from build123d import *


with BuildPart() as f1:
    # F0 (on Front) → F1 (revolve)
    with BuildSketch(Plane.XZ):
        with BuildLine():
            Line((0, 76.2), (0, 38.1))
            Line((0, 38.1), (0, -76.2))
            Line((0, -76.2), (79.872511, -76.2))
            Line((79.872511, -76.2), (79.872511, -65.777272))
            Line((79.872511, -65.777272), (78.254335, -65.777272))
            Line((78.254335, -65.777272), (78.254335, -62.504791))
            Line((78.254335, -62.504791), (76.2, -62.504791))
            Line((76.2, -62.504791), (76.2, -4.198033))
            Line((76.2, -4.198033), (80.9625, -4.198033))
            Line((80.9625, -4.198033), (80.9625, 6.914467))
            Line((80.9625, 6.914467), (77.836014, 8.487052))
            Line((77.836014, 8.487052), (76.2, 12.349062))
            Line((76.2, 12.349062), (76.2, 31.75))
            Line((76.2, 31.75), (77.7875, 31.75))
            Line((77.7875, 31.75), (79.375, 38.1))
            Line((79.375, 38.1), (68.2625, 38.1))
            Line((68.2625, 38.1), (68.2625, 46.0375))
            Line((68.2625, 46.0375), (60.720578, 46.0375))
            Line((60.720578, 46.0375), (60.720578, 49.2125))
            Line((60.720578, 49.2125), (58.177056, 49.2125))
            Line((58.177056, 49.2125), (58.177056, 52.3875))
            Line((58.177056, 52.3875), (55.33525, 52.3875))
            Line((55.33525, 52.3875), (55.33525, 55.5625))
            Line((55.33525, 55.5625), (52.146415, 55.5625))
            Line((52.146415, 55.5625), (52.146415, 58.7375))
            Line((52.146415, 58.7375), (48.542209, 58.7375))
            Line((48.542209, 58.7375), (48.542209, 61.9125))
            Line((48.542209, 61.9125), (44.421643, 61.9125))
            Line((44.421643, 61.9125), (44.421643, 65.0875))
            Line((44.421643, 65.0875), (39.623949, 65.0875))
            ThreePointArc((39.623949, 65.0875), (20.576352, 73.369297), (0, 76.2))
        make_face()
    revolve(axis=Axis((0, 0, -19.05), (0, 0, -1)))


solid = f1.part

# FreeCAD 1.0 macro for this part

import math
import FreeCAD as App
import Part
import Sketcher
from FreeCAD import Vector
Q = App.Units.Quantity

doc = App.newDocument("Part")
body = doc.addObject("PartDesign::Body", "Body")

sketch1 = body.newObject("Sketcher::SketchObject", "Sketch")
sketch1.AttachmentSupport = (doc.getObject("XZ_Plane"), [""])
sketch1.MapMode = "FlatFace"
sketch1.addGeometry([
    Part.LineSegment(Vector(0, 76.2, 0), Vector(0, -76.2, 0)),
    Part.LineSegment(Vector(0, -76.2, 0), Vector(79.9, -76.2, 0)),
    Part.LineSegment(Vector(79.9, -76.2, 0), Vector(79.9, -65.8, 0)),
    Part.LineSegment(Vector(79.9, -65.8, 0), Vector(78.3, -65.8, 0)),
    Part.LineSegment(Vector(78.3, -65.8, 0), Vector(78.3, -62.5, 0)),
    Part.LineSegment(Vector(78.3, -62.5, 0), Vector(76.2, -62.5, 0)),
    Part.LineSegment(Vector(76.2, -62.5, 0), Vector(76.2, -4.2, 0)),
    Part.LineSegment(Vector(76.2, -4.2, 0), Vector(81, -4.2, 0)),
    Part.LineSegment(Vector(81, -4.2, 0), Vector(81, 6.9, 0)),
    Part.LineSegment(Vector(81, 6.9, 0), Vector(77.8, 8.5, 0)),
    Part.LineSegment(Vector(77.8, 8.5, 0), Vector(76.2, 12.3, 0)),
    Part.LineSegment(Vector(76.2, 12.3, 0), Vector(76.2, 31.8, 0)),
    Part.LineSegment(Vector(76.2, 31.8, 0), Vector(77.8, 31.8, 0)),
    Part.LineSegment(Vector(77.8, 31.8, 0), Vector(79.4, 38.1, 0)),
    Part.LineSegment(Vector(79.4, 38.1, 0), Vector(68.3, 38.1, 0)),
    Part.LineSegment(Vector(68.3, 38.1, 0), Vector(68.3, 46, 0)),
    Part.LineSegment(Vector(68.3, 46, 0), Vector(60.7, 46, 0)),
    Part.LineSegment(Vector(60.7, 46, 0), Vector(60.7, 49.2, 0)),
    Part.LineSegment(Vector(60.7, 49.2, 0), Vector(58.2, 49.2, 0)),
    Part.LineSegment(Vector(58.2, 49.2, 0), Vector(58.2, 52.4, 0)),
    Part.LineSegment(Vector(58.2, 52.4, 0), Vector(55.3, 52.4, 0)),
    Part.LineSegment(Vector(55.3, 52.4, 0), Vector(55.3, 55.6, 0)),
    Part.LineSegment(Vector(55.3, 55.6, 0), Vector(52.1, 55.6, 0)),
    Part.LineSegment(Vector(52.1, 55.6, 0), Vector(52.1, 58.7, 0)),
    Part.LineSegment(Vector(52.1, 58.7, 0), Vector(48.5, 58.7, 0)),
    Part.LineSegment(Vector(48.5, 58.7, 0), Vector(48.5, 61.9, 0)),
    Part.LineSegment(Vector(48.5, 61.9, 0), Vector(44.4, 61.9, 0)),
    Part.LineSegment(Vector(44.4, 61.9, 0), Vector(44.4, 65.1, 0)),
    Part.LineSegment(Vector(44.4, 65.1, 0), Vector(39.6, 65.1, 0)),
    Part.ArcOfCircle(Part.Circle(Vector(0, 0, 0), Vector(0, 0, 1), 76.2), math.radians(59), math.radians(90)),
], False)
sketch1.addConstraint([
    Sketcher.Constraint("Coincident", 0, 2, 1, 1),
    Sketcher.Constraint("Coincident", 1, 2, 2, 1),
    Sketcher.Constraint("Coincident", 2, 2, 3, 1),
    Sketcher.Constraint("Coincident", 3, 2, 4, 1),
    Sketcher.Constraint("Coincident", 4, 2, 5, 1),
    Sketcher.Constraint("Coincident", 5, 2, 6, 1),
    Sketcher.Constraint("Coincident", 6, 2, 7, 1),
    Sketcher.Constraint("Coincident", 7, 2, 8, 1),
    Sketcher.Constraint("Coincident", 8, 2, 9, 1),
    Sketcher.Constraint("Coincident", 9, 2, 10, 1),
    Sketcher.Constraint("Coincident", 10, 2, 11, 1),
    Sketcher.Constraint("Coincident", 11, 2, 12, 1),
    Sketcher.Constraint("Coincident", 12, 2, 13, 1),
    Sketcher.Constraint("Coincident", 13, 2, 14, 1),
    Sketcher.Constraint("Coincident", 14, 2, 15, 1),
    Sketcher.Constraint("Coincident", 15, 2, 16, 1),
    Sketcher.Constraint("Coincident", 16, 2, 17, 1),
    Sketcher.Constraint("Coincident", 17, 2, 18, 1),
    Sketcher.Constraint("Coincident", 18, 2, 19, 1),
    Sketcher.Constraint("Coincident", 19, 2, 20, 1),
    Sketcher.Constraint("Coincident", 20, 2, 21, 1),
    Sketcher.Constraint("Coincident", 21, 2, 22, 1),
    Sketcher.Constraint("Coincident", 22, 2, 23, 1),
    Sketcher.Constraint("Coincident", 23, 2, 24, 1),
    Sketcher.Constraint("Coincident", 24, 2, 25, 1),
    Sketcher.Constraint("Coincident", 25, 2, 26, 1),
    Sketcher.Constraint("Coincident", 26, 2, 27, 1),
    Sketcher.Constraint("Coincident", 27, 2, 28, 1),
    Sketcher.Constraint("Coincident", 28, 2, 29, 1),
    Sketcher.Constraint("Coincident", 29, 2, 0, 1),
    Sketcher.Constraint("Vertical", 0),
    Sketcher.Constraint("Horizontal", 1),
    Sketcher.Constraint("Vertical", 2),
    Sketcher.Constraint("Horizontal", 3),
    Sketcher.Constraint("Vertical", 4),
    Sketcher.Constraint("Horizontal", 5),
    Sketcher.Constraint("Vertical", 6),
    Sketcher.Constraint("Horizontal", 7),
    Sketcher.Constraint("Vertical", 8),
    Sketcher.Constraint("Vertical", 11),
    Sketcher.Constraint("Horizontal", 12),
    Sketcher.Constraint("Horizontal", 14),
    Sketcher.Constraint("Vertical", 15),
    Sketcher.Constraint("Horizontal", 16),
    Sketcher.Constraint("Vertical", 17),
    Sketcher.Constraint("Horizontal", 18),
    Sketcher.Constraint("Vertical", 19),
    Sketcher.Constraint("Horizontal", 20),
    Sketcher.Constraint("Vertical", 21),
    Sketcher.Constraint("Horizontal", 22),
    Sketcher.Constraint("Vertical", 23),
    Sketcher.Constraint("Horizontal", 24),
    Sketcher.Constraint("Vertical", 25),
    Sketcher.Constraint("Horizontal", 26),
    Sketcher.Constraint("Vertical", 27),
    Sketcher.Constraint("Horizontal", 28),
    Sketcher.Constraint("Coincident", 29, 3, -1, 1),
    Sketcher.Constraint("Symmetric", 0, 2, 29, 2, -1, 1),
    Sketcher.Constraint("Vertical", 6, 2, 10, 2),
    Sketcher.Constraint("Equal", 14, 8),
    Sketcher.Constraint("Equal", 17, 19),
    Sketcher.Constraint("Equal", 19, 21),
    Sketcher.Constraint("Equal", 21, 23),
    Sketcher.Constraint("Equal", 23, 25),
    Sketcher.Constraint("Equal", 25, 27),
    Sketcher.Constraint("Radius", 29, Q("2.9999999 in")),
    Sketcher.Constraint("DistanceX", -1, 1, 5, 2, Q("3 in")),
    Sketcher.Constraint("DistanceY", -1, 1, 13, 2, Q("1.5 in")),
    Sketcher.Constraint("DistanceX", 7, 1, 7, 2, Q("0.1875 in")),
    Sketcher.Constraint("DistanceX", 12, 1, 12, 2, Q("0.0625 in")),
    Sketcher.Constraint("DistanceX", 14, 2, 14, 1, Q("0.4375 in")),
    Sketcher.Constraint("DistanceY", 15, 1, 15, 2, Q("0.3125 in")),
    Sketcher.Constraint("DistanceY", 17, 1, 17, 2, Q("0.125 in")),
    Sketcher.Constraint("DistanceY", -1, 1, 11, 2, Q("1.25 in")),
    Sketcher.Constraint("DistanceX", -1, 1, 13, 2, Q("3.125 in")),
    Sketcher.Constraint("DistanceX", 1, 1, 1, 2, Q("79.872511 mm")),
    Sketcher.Constraint("DistanceX", 16, 2, 16, 1, Q("7.541922 mm")),
    Sketcher.Constraint("DistanceY", 2, 1, 2, 2, Q("10.422728 mm")),
    Sketcher.Constraint("DistanceY", 4, 1, 4, 2, Q("3.272481 mm")),
    Sketcher.Constraint("DistanceY", 11, 1, 11, 2, Q("19.400938 mm")),
    Sketcher.Constraint("Distance", 10, Q("4.194242 mm")),
    Sketcher.Constraint("DistanceX", 3, 2, 3, 1, Q("1.618176 mm")),
    Sketcher.Constraint("DistanceX", 18, 2, 18, 1, Q("2.543522 mm")),
    Sketcher.Constraint("DistanceX", 20, 2, 20, 1, Q("2.841806 mm")),
    Sketcher.Constraint("DistanceX", 22, 2, 22, 1, Q("3.188835 mm")),
    Sketcher.Constraint("DistanceX", 24, 2, 24, 1, Q("3.604206 mm")),
    Sketcher.Constraint("DistanceX", 26, 2, 26, 1, Q("4.120566 mm")),
    Sketcher.Constraint("DistanceY", 6, 1, 6, 2, Q("58.306758 mm")),
    Sketcher.Constraint("DistanceX", 9, 2, 4, 2, Q("0.418321 mm")),
])
revolution = body.newObject("PartDesign::Revolution", "Revolution")
revolution.Profile = sketch1
revolution.ReferenceAxis = (sketch1, ["V_Axis"])
revolution.Angle = 360

doc.recompute()
